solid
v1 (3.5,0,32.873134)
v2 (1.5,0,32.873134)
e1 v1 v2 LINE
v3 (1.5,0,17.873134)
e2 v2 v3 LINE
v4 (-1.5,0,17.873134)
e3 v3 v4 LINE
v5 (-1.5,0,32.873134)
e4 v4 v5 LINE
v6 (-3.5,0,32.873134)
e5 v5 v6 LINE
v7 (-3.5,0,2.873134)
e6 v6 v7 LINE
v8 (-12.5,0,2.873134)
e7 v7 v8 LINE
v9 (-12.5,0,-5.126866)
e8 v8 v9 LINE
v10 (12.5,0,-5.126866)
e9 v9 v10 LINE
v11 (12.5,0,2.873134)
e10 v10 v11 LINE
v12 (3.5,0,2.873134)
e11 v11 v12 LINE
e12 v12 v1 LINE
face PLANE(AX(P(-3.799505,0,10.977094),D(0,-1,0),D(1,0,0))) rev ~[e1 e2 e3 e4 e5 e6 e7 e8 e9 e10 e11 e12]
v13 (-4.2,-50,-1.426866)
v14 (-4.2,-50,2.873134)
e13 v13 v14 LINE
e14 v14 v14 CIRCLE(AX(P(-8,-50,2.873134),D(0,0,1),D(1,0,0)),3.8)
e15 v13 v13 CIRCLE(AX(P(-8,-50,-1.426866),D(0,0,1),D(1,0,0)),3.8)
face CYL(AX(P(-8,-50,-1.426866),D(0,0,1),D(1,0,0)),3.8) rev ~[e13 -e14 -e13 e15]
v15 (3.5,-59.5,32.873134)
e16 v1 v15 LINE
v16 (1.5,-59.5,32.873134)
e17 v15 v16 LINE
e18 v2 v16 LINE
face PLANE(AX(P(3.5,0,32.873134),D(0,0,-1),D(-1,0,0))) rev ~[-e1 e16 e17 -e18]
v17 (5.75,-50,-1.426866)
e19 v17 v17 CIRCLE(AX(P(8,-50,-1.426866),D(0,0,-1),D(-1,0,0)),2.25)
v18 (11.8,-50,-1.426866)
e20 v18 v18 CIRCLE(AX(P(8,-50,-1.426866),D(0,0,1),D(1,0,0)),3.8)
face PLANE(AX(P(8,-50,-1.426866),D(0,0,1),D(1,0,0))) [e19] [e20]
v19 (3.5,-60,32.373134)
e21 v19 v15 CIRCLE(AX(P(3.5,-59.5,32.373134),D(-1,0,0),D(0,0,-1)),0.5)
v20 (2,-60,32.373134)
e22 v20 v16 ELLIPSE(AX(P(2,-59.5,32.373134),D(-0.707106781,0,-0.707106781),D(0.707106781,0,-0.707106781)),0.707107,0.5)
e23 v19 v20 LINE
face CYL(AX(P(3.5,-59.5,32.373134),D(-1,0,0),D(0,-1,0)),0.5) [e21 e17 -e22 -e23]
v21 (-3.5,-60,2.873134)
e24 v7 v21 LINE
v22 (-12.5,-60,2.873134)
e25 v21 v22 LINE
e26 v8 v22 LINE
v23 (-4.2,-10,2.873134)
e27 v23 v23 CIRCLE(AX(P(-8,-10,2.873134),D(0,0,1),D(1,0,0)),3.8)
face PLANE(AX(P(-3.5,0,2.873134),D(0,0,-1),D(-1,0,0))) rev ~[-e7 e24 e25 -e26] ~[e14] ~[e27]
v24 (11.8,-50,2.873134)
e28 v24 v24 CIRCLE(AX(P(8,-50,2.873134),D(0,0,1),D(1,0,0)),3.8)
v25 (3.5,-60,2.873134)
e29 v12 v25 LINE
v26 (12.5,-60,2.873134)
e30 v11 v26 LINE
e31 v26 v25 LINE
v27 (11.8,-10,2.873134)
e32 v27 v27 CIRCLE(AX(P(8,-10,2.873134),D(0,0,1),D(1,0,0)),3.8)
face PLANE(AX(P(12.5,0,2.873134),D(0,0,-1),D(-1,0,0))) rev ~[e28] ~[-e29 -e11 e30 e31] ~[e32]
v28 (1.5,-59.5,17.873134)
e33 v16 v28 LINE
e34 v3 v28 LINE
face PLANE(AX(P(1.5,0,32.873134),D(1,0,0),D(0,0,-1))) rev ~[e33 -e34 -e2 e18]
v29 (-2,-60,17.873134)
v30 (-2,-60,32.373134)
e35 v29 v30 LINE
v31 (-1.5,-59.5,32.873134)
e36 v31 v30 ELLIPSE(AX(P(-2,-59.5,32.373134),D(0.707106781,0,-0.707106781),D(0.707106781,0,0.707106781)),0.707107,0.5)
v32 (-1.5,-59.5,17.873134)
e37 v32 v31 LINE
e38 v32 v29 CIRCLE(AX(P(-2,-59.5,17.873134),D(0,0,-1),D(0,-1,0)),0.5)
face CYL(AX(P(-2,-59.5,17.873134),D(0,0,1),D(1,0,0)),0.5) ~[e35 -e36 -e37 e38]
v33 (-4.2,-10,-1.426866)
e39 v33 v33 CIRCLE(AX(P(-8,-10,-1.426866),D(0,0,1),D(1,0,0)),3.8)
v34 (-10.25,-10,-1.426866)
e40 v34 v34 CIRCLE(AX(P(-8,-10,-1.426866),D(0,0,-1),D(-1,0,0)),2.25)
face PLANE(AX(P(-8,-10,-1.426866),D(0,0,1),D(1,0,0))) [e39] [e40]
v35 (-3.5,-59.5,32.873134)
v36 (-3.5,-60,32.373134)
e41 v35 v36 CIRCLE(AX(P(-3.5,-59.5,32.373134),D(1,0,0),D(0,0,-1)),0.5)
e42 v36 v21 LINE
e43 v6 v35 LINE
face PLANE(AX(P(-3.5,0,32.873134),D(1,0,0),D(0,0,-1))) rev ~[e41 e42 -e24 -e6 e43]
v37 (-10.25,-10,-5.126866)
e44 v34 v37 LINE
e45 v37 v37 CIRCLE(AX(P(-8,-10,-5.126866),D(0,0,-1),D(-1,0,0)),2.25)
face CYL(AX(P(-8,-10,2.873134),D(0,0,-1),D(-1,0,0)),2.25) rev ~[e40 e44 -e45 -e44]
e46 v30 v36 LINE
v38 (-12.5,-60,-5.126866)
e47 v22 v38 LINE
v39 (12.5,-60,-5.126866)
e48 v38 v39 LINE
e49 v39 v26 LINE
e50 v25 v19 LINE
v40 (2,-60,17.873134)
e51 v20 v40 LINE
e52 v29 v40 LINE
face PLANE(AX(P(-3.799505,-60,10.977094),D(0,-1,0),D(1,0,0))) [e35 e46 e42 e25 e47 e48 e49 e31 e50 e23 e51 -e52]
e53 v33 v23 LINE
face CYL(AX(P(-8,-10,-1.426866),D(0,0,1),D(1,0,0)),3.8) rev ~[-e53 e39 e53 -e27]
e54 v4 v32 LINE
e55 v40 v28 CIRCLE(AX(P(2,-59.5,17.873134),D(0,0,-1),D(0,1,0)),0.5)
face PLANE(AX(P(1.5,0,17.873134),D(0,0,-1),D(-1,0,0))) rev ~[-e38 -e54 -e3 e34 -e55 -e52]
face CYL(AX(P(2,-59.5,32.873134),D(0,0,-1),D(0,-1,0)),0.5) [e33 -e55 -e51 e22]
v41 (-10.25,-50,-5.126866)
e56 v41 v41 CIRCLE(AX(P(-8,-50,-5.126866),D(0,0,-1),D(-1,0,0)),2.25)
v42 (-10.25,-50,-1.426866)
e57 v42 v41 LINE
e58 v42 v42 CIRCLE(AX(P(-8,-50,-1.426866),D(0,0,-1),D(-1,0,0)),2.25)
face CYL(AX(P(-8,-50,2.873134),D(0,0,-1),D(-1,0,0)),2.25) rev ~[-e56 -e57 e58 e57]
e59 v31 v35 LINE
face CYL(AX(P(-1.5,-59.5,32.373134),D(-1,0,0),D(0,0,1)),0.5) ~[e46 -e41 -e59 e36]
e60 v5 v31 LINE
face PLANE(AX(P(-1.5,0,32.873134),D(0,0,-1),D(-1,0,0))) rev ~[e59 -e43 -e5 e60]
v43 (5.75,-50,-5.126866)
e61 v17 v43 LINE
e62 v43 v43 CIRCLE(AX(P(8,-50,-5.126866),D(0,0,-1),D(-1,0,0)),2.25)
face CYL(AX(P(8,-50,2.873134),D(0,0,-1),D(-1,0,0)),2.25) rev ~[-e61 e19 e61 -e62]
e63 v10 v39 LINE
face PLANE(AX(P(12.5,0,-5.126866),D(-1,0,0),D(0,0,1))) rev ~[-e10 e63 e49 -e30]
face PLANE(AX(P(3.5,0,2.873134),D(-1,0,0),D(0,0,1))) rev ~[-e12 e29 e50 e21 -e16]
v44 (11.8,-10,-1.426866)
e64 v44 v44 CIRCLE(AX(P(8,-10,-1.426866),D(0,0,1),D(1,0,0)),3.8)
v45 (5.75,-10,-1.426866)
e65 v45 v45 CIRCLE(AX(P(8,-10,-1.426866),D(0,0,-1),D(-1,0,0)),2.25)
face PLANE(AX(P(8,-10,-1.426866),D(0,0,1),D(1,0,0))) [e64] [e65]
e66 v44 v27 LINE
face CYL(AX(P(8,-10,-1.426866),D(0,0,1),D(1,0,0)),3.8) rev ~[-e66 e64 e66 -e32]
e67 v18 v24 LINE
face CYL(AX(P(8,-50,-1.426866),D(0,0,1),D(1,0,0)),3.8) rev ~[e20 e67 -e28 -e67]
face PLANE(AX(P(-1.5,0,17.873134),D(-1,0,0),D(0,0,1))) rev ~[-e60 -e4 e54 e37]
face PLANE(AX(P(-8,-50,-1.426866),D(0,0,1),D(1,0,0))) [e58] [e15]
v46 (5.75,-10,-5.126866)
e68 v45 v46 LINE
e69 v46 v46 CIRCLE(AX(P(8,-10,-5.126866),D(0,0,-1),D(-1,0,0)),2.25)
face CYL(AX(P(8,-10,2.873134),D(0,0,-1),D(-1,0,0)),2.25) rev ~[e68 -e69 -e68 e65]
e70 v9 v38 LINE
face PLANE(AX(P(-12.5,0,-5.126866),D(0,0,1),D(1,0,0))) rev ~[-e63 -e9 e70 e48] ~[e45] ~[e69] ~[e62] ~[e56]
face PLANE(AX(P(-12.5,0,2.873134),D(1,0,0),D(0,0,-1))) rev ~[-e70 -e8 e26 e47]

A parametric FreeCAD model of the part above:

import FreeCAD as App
import Part
import Sketcher
from FreeCAD import Vector


def edges_at(feature, points):
    """Names of the edges that pass closest to the given points."""
    edges = feature.Shape.Edges
    near = lambda p: min(range(len(edges)), key=lambda i: edges[i].distToShape(Part.Vertex(*p))[0])
    return sorted({f"Edge{near(p) + 1}" for p in points})


def add_polygon(sketch, points):
    """Adds a closed chain of lines whose ends are joined by coincident constraints."""
    first, n = sketch.GeometryCount, len(points)
    for a, b in zip(points, points[1:] + points[:1]):
        sketch.addGeometry(Part.LineSegment(App.Vector(*a, 0), App.Vector(*b, 0)), False)
    for i in range(n):
        sketch.addConstraint(Sketcher.Constraint("Coincident", first + i, 2, first + (i + 1) % n, 1))

doc = App.newDocument("Part")
params = doc.addObject("Spreadsheet::Sheet", "Params")
for row, (alias, value) in enumerate([
    ("sketch1_width", "2 mm"),
    ("sketch1_width2", "9 mm"),
    ("sketch1_width3", "25 mm"),
    ("sketch1_height", "15 mm"),
    ("sketch1_height2", "30 mm"),
    ("pad1_length", "60 mm"),
    ("sketch2_diameter", "4.5 mm"),
    ("hole_diameter", "4.5 mm"),
    ("hole_cbore_diameter", "7.6 mm"),
    ("hole_cbore_depth", "4.3 mm"),
    ("fillet_radius", "0.5 mm"),
], start=1):
    params.set(f"A{row}", alias)
    params.set(f"B{row}", "=" + value)
    params.setAlias(f"B{row}", alias)

body = doc.addObject("PartDesign::Body", "Body")

# Sketch on XZ plane
sketch1 = body.newObject("Sketcher::SketchObject", "Sketch")
sketch1.AttachmentSupport = (doc.getObject("XZ_Plane"), [""])
sketch1.MapMode = "FlatFace"
add_polygon(sketch1, [(-1.5, 17.9), (-1.5, 32.9), (-3.5, 32.9), (-3.5, 2.9), (-12.5, 2.9), (-12.5, -5.1), (12.5, -5.1), (12.5, 2.9), (3.5, 2.9), (3.5, 32.9), (1.5, 32.9), (1.5, 17.9)])  # lines 0-11
sketch1.addConstraint([
    Sketcher.Constraint("Vertical", 0),
    Sketcher.Constraint("Horizontal", 1),
    Sketcher.Constraint("Vertical", 2),
    Sketcher.Constraint("Horizontal", 3),
    Sketcher.Constraint("Vertical", 4),
    Sketcher.Constraint("Horizontal", 5),
    Sketcher.Constraint("Vertical", 6),
    Sketcher.Constraint("Horizontal", 7),
    Sketcher.Constraint("Vertical", 8),
    Sketcher.Constraint("Horizontal", 9),
    Sketcher.Constraint("Vertical", 10),
    Sketcher.Constraint("Horizontal", 11),
    Sketcher.Constraint("Symmetric", 3, 2, 6, 2, -2),
    Sketcher.Constraint("Symmetric", 1, 2, 8, 2, -2),
    Sketcher.Constraint("Equal", 1, 9),
    Sketcher.Constraint("DistanceX", 1, 2, 1, 1, 2.0),
    Sketcher.Constraint("DistanceX", 3, 2, 3, 1, 9.0),
    Sketcher.Constraint("DistanceX", 5, 1, 5, 2, 25.0),
    Sketcher.Constraint("DistanceY", 0, 1, 0, 2, 15.0),
    Sketcher.Constraint("DistanceY", 2, 2, 2, 1, 30.0),
    Sketcher.Constraint("DistanceY", 4, 2, 4, 1, 8.0),
    Sketcher.Constraint("DistanceY", -1, 1, 0, 2, 32.873134),
])
sketch1.setExpression("Constraints[27]", "Params.sketch1_width")
sketch1.setExpression("Constraints[28]", "Params.sketch1_width2")
sketch1.setExpression("Constraints[29]", "Params.sketch1_width3")
sketch1.setExpression("Constraints[30]", "Params.sketch1_height")
sketch1.setExpression("Constraints[31]", "Params.sketch1_height2")
pad1 = body.newObject("PartDesign::Pad", "Pad")
pad1.Profile = sketch1
pad1.setExpression("Length", "Params.pad1_length")

# Sketch on XY plane
sketch2 = body.newObject("Sketcher::SketchObject", "Sketch001")
sketch2.AttachmentSupport = (doc.getObject("XY_Plane"), [""])
sketch2.MapMode = "FlatFace"
sketch2.AttachmentOffset = App.Placement(Vector(0, 0, 2.873134), App.Rotation())
sketch2.addGeometry([
    Part.Circle(Vector(-8, -50, 0), Vector(0, 0, 1), 2.2),
    Part.Circle(Vector(-8, -10, 0), Vector(0, 0, 1), 2.2),
    Part.Circle(Vector(8, -50, 0), Vector(0, 0, 1), 2.2),
    Part.Circle(Vector(8, -10, 0), Vector(0, 0, 1), 2.2),
], False)
sketch2.addConstraint([
    Sketcher.Constraint("Equal", 0, 1),
    Sketcher.Constraint("Equal", 1, 2),
    Sketcher.Constraint("Equal", 2, 3),
    Sketcher.Constraint("Symmetric", 0, 3, 2, 3, -2),
    Sketcher.Constraint("Symmetric", 1, 3, 3, 3, -2),
    Sketcher.Constraint("Vertical", 0, 3, 1, 3),
    Sketcher.Constraint("Diameter", 0, 4.5),
    Sketcher.Constraint("DistanceX", 0, 3, -1, 1, 8.0),
    Sketcher.Constraint("DistanceY", 0, 3, -1, 1, 50.0),
    Sketcher.Constraint("DistanceY", 1, 3, -1, 1, 10.0),
])
sketch2.setExpression("Constraints[6]", "Params.sketch2_diameter")
doc.recompute()
hole = body.newObject("PartDesign::Hole", "Hole")
hole.Profile = sketch2
hole.ThreadType = "None"
hole.setExpression("Diameter", "Params.hole_diameter")
hole.DepthType = "ThroughAll"
hole.HoleCutType = "Counterbore"
hole.setExpression("HoleCutDiameter", "Params.hole_cbore_diameter")
hole.setExpression("HoleCutDepth", "Params.hole_cbore_depth")
doc.recompute()

fillet = body.newObject("PartDesign::Fillet", "Fillet")
fillet.Base = (hole, edges_at(hole, [
    (-1.5, -60, 25.373),
    (1.5, -60, 25.373),
    (2.5, -60, 32.873),
    (-2.5, -60, 32.873),
]))
fillet.setExpression("Radius", "Params.fillet_radius")

doc.recompute()
